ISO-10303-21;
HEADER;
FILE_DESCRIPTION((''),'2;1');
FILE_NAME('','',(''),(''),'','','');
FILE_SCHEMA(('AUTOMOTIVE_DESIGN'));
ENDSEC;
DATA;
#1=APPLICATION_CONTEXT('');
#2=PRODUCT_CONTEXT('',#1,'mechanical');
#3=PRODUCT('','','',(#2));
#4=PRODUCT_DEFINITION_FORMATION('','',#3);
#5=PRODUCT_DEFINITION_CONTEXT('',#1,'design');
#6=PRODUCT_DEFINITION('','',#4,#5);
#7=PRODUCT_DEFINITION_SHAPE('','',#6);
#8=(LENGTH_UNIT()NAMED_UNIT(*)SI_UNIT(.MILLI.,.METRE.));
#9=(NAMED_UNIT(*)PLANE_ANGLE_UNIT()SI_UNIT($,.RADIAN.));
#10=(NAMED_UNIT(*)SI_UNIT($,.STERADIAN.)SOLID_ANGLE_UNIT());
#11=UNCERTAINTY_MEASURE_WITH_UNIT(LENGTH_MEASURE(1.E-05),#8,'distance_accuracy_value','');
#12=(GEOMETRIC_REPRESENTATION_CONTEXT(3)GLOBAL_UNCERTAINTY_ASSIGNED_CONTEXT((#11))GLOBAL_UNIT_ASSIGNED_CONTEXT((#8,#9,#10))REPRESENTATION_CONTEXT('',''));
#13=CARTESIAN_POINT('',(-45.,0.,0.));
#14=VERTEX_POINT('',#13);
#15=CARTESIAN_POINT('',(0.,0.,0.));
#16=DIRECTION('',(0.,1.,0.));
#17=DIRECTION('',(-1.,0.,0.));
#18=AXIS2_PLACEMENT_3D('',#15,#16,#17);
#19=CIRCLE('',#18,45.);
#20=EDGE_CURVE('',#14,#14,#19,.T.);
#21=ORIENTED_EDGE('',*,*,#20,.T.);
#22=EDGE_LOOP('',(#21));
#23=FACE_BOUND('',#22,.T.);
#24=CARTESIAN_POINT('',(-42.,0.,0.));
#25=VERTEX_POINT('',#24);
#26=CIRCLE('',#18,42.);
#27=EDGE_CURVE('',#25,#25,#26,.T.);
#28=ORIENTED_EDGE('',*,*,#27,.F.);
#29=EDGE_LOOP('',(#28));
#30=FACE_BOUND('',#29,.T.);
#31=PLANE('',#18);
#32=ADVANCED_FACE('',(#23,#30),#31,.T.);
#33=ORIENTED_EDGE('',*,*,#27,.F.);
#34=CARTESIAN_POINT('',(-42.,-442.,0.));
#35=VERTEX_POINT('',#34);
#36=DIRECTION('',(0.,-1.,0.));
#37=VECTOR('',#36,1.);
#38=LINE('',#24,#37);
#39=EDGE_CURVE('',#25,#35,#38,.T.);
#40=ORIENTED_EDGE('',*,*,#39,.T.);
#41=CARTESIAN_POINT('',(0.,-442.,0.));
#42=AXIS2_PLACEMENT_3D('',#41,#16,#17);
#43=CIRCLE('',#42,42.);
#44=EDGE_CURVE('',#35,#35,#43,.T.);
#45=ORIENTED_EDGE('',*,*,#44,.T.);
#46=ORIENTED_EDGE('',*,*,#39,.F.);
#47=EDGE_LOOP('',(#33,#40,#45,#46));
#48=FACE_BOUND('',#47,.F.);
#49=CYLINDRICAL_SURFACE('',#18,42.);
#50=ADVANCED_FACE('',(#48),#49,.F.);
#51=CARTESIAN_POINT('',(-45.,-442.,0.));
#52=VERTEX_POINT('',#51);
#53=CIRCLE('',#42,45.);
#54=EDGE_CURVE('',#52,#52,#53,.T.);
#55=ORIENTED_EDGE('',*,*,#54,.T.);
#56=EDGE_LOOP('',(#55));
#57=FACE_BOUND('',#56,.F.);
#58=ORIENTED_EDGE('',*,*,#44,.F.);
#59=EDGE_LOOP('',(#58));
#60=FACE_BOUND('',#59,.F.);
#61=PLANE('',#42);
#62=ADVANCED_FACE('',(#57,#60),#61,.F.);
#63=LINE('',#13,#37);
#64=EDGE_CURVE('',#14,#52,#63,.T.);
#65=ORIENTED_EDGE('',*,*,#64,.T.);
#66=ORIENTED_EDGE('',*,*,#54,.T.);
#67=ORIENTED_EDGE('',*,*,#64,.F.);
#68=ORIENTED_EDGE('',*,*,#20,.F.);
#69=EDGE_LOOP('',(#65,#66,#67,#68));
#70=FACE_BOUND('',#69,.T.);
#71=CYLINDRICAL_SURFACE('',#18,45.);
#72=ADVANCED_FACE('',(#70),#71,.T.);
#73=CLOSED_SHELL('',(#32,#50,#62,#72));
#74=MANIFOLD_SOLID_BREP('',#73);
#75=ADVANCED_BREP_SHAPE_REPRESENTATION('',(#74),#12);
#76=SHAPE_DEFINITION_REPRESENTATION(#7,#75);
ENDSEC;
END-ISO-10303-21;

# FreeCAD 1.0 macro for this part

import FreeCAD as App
import Part
import Sketcher
Q = App.Units.Quantity

doc = App.newDocument("Part")
body = doc.addObject("PartDesign::Body", "Body")

sketch1 = body.newObject("Sketcher::SketchObject", "Sketch")
sketch1.AttachmentSupport = (doc.getObject("XZ_Plane"), [""])
sketch1.MapMode = "FlatFace"
sketch1.addGeometry([
    Part.Circle(App.Vector(0, 0, 0), App.Vector(0, 0, 1), 45),
    Part.Circle(App.Vector(0, 0, 0), App.Vector(0, 0, 1), 42),
], False)
sketch1.addConstraint([
    Sketcher.Constraint("Coincident", 0, 3, -1, 1),
    Sketcher.Constraint("Coincident", 1, 3, -1, 1),
    Sketcher.Constraint("Diameter", 0, Q("90 mm")),
    Sketcher.Constraint("Diameter", 1, Q("84 mm")),
])
pad1 = body.newObject("PartDesign::Pad", "Pad")
pad1.Profile = sketch1
pad1.Length = 442

doc.recompute()
